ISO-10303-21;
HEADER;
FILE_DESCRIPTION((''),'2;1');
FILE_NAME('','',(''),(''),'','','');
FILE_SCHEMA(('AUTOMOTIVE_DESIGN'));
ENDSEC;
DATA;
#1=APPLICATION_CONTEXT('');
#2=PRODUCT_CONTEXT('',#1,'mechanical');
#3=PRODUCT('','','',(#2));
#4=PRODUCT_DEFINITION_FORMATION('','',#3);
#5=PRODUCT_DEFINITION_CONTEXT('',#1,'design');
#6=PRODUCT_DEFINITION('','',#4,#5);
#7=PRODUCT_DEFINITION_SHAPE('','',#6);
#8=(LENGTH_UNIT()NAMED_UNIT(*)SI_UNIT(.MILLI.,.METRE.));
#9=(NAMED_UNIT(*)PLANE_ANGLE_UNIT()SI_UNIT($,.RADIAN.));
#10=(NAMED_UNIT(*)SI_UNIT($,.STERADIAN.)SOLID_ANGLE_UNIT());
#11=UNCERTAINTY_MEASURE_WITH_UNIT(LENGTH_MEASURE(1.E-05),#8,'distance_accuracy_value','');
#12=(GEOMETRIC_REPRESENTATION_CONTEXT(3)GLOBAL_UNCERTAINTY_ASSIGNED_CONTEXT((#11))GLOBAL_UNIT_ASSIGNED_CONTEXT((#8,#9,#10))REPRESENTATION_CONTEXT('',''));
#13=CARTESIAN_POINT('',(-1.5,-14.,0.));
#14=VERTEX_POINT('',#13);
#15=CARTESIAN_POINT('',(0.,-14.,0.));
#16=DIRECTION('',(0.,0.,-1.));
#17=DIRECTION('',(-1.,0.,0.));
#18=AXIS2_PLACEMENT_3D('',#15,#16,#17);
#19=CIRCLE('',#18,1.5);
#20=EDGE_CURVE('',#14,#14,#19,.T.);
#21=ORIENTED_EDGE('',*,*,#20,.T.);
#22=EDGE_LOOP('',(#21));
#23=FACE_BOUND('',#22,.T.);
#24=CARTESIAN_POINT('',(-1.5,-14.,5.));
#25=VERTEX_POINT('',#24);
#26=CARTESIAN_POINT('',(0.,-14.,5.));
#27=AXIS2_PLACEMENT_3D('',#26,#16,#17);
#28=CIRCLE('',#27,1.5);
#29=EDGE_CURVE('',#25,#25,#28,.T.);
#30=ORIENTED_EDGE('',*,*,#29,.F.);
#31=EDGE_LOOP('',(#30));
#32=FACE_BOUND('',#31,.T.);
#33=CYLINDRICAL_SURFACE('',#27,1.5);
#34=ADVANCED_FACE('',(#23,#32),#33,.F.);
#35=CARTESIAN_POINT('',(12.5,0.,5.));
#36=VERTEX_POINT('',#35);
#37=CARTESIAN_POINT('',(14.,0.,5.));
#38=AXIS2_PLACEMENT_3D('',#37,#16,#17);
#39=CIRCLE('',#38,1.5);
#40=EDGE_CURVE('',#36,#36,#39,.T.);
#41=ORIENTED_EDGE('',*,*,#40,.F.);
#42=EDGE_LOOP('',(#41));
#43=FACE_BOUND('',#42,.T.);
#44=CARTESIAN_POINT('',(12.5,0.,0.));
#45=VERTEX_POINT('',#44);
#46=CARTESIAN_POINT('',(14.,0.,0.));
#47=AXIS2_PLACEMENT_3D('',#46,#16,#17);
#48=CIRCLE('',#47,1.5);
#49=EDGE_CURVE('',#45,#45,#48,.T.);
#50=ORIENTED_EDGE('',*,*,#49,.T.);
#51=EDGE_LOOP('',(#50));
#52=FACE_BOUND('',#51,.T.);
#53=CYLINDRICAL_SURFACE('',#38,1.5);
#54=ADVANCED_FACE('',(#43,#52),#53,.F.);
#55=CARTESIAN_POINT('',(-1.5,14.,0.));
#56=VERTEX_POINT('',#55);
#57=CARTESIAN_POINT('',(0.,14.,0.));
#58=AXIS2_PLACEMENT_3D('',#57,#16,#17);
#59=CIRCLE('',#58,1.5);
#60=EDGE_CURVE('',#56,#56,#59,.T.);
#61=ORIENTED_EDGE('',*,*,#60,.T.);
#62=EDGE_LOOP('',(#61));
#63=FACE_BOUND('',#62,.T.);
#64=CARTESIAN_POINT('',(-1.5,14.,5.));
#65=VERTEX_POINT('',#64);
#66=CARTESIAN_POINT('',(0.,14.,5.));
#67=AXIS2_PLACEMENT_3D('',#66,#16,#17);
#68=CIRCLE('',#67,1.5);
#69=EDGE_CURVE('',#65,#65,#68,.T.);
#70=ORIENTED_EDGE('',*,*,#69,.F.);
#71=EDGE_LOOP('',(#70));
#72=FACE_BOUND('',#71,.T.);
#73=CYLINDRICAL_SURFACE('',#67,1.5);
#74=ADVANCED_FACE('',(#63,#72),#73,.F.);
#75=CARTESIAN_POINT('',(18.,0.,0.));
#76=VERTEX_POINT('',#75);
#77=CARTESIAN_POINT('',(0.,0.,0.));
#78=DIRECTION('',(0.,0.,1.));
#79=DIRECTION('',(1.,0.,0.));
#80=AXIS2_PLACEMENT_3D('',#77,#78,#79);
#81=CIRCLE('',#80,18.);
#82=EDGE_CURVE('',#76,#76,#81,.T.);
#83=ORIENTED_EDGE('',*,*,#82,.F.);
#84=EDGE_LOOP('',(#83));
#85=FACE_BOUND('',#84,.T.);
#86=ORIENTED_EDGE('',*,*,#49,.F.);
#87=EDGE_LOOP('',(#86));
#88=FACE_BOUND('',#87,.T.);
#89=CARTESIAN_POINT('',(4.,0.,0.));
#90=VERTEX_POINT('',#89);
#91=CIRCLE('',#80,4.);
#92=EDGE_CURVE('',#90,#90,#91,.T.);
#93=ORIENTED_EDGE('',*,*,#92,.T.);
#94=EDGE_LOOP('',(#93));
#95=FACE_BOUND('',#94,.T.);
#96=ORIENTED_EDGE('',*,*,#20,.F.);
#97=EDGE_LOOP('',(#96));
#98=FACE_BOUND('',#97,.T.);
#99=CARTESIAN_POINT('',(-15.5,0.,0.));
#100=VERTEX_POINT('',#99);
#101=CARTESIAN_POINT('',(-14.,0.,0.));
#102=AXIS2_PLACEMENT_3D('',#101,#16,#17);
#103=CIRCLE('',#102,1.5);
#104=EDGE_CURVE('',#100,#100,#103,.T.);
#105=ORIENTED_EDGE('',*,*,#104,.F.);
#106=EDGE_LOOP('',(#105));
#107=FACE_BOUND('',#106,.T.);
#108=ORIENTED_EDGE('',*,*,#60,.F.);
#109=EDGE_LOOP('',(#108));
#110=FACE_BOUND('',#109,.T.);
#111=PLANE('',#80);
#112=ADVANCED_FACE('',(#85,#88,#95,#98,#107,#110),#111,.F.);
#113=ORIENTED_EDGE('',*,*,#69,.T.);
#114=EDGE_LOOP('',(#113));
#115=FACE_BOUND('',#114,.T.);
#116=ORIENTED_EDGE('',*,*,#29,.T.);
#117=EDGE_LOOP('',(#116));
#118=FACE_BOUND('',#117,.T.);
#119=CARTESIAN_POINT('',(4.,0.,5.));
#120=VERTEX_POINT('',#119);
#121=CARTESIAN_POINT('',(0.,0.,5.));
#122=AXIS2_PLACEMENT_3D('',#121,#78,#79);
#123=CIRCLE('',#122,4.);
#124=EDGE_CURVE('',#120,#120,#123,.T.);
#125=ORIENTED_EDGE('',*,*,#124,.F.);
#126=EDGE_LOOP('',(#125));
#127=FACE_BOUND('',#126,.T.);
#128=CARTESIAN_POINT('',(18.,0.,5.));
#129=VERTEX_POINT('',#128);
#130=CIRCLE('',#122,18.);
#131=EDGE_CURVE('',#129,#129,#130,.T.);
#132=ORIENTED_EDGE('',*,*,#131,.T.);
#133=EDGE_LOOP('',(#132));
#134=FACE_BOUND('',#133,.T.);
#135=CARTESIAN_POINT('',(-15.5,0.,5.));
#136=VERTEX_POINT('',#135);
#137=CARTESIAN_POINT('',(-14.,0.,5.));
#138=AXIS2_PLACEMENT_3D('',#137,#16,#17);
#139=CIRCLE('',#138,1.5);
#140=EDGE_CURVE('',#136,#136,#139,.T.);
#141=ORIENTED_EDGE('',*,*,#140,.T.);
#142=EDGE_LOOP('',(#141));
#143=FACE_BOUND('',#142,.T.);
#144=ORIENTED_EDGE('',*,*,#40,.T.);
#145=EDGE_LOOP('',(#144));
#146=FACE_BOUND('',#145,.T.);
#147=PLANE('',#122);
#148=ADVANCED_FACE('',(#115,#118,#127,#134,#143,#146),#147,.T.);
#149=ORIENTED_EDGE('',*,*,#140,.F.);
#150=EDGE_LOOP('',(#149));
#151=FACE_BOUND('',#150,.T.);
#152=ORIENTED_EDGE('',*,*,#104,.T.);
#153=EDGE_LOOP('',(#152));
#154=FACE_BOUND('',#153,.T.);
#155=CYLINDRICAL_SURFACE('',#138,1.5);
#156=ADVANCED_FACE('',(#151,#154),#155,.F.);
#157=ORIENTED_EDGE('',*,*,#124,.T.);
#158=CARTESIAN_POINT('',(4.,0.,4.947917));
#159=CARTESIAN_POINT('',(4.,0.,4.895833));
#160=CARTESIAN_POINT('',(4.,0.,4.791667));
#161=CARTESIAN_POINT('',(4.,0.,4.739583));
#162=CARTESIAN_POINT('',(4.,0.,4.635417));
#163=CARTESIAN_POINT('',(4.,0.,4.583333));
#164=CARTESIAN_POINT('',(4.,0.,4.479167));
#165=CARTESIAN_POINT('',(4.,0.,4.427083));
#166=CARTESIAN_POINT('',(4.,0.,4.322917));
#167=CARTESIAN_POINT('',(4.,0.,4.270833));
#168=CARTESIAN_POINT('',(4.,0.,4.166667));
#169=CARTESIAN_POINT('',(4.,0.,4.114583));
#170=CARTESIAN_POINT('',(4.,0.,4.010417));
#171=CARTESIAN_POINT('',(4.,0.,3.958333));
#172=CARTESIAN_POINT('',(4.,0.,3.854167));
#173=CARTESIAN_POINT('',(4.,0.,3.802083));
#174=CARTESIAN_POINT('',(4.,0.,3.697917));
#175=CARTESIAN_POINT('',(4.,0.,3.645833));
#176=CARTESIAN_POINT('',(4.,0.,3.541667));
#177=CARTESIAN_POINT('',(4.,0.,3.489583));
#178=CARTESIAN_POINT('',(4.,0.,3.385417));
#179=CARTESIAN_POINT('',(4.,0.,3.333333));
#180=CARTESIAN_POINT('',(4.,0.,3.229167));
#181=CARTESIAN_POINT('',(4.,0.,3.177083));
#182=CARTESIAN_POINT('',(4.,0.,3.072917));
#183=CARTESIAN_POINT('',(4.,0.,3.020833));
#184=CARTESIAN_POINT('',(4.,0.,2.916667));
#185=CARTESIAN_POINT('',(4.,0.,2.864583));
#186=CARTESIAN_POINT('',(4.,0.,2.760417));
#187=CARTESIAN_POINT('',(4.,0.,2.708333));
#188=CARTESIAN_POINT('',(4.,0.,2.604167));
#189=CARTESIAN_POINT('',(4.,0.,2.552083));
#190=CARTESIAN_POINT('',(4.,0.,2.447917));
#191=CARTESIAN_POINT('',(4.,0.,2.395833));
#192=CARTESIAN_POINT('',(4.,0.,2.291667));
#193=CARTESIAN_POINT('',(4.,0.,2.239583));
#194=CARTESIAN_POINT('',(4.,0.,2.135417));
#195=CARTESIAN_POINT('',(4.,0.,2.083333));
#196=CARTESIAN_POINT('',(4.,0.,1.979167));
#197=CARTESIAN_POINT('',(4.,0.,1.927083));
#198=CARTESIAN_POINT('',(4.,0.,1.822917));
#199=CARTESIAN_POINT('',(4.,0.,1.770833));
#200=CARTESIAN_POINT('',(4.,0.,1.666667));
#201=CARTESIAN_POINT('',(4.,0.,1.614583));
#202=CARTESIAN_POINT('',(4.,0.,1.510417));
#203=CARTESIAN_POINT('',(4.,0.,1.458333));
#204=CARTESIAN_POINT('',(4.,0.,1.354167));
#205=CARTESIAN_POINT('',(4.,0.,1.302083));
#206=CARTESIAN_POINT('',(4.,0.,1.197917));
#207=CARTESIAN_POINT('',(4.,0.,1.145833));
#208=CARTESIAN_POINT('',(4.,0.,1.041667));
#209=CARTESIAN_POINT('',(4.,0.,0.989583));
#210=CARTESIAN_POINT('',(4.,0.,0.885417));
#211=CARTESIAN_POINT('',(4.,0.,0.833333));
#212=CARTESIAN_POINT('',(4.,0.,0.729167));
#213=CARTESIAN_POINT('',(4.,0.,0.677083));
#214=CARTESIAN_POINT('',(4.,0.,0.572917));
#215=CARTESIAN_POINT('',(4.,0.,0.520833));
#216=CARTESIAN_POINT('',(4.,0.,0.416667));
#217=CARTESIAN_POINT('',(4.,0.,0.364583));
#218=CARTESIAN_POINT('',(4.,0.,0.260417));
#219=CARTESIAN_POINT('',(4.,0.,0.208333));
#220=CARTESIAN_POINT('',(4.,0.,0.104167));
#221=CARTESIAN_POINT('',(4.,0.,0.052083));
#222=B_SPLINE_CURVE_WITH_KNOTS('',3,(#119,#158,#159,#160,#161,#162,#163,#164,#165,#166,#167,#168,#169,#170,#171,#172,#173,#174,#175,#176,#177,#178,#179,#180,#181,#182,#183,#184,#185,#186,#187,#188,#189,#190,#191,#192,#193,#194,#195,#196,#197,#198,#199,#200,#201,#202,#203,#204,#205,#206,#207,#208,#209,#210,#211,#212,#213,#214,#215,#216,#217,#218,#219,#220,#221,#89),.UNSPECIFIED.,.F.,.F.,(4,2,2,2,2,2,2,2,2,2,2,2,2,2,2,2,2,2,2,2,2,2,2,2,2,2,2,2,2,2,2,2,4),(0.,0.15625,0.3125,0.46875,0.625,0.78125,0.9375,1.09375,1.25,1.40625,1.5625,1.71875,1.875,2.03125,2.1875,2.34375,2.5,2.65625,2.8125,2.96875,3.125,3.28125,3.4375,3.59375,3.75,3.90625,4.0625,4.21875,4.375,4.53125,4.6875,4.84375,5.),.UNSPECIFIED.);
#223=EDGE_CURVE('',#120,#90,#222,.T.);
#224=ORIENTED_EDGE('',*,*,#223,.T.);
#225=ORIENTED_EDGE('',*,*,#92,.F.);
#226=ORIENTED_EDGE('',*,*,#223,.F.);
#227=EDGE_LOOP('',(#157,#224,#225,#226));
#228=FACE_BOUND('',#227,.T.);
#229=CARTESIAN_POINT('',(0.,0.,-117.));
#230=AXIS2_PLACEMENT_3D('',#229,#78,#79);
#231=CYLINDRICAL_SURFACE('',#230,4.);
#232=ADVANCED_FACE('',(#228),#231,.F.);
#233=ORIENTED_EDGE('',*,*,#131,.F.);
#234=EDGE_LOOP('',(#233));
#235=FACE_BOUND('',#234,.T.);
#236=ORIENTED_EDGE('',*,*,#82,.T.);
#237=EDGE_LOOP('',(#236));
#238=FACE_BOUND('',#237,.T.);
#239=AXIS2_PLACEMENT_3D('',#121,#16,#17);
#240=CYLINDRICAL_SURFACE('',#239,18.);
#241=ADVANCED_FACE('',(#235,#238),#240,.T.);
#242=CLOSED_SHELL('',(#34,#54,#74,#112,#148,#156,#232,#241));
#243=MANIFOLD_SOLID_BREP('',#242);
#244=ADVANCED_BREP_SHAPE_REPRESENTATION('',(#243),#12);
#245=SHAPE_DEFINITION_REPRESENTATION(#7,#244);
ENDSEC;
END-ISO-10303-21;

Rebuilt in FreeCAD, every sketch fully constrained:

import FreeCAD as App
import Part
import Sketcher
from FreeCAD import Vector

doc = App.newDocument("Part")
params = doc.addObject("Spreadsheet::Sheet", "Params")
for row, (alias, value) in enumerate([
    ("sketch1_diameter", "36 mm"),
    ("pad1_length", "5 mm"),
    ("sketch2_diameter", "8 mm"),
    ("pocket1_length", "122 mm"),
    ("sketch3_diameter", "3 mm"),
    ("pocket2_length", "5 mm"),
], start=1):
    params.set(f"A{row}", alias)
    params.set(f"B{row}", "=" + value)
    params.setAlias(f"B{row}", alias)

body = doc.addObject("PartDesign::Body", "Body")

# Sketch on XY plane
sketch1 = doc.addObject("Sketcher::SketchObject", "Sketch")
body.addObject(sketch1)
sketch1.AttachmentSupport = (doc.XY_Plane, [""])
sketch1.MapMode = "FlatFace"
sketch1.addGeometry(Part.Circle(Vector(0, 0, 0), Vector(0, 0, 1), 18), False)
sketch1.addConstraint(Sketcher.Constraint("Coincident", 0, 3, -1, 1))
sketch1.addConstraint(Sketcher.Constraint("Diameter", 0, 36.0))
sketch1.setExpression("Constraints[1]", "Params.sketch1_diameter")
pad1 = doc.addObject("PartDesign::Pad", "Pad")
body.addObject(pad1)
pad1.Profile = sketch1
pad1.setExpression("Length", "Params.pad1_length")

# Sketch on XY plane
sketch2 = doc.addObject("Sketcher::SketchObject", "Sketch001")
body.addObject(sketch2)
sketch2.AttachmentSupport = (doc.XY_Plane, [""])
sketch2.MapMode = "FlatFace"
sketch2.AttachmentOffset = App.Placement(Vector(0, 0, 5), App.Rotation())
sketch2.addGeometry(Part.Circle(Vector(0, 0, 0), Vector(0, 0, 1), 4), False)
sketch2.addConstraint(Sketcher.Constraint("Coincident", 0, 3, -1, 1))
sketch2.addConstraint(Sketcher.Constraint("Diameter", 0, 8.0))
sketch2.setExpression("Constraints[1]", "Params.sketch2_diameter")
pocket1 = doc.addObject("PartDesign::Pocket", "Pocket")
body.addObject(pocket1)
pocket1.Profile = sketch2
pocket1.setExpression("Length", "Params.pocket1_length")

# Sketch on XY plane
sketch3 = doc.addObject("Sketcher::SketchObject", "Sketch002")
body.addObject(sketch3)
sketch3.AttachmentSupport = (doc.XY_Plane, [""])
sketch3.MapMode = "FlatFace"
sketch3.addGeometry(Part.Circle(Vector(0, 14, 0), Vector(0, 0, 1), 1.5), False)
sketch3.addGeometry(Part.Circle(Vector(-14, 0, 0), Vector(0, 0, 1), 1.5), False)
sketch3.addGeometry(Part.Circle(Vector(0, -14, 0), Vector(0, 0, 1), 1.5), False)
sketch3.addGeometry(Part.Circle(Vector(14, 0, 0), Vector(0, 0, 1), 1.5), False)
sketch3.addConstraint(Sketcher.Constraint("Equal", 0, 1))
sketch3.addConstraint(Sketcher.Constraint("Equal", 1, 2))
sketch3.addConstraint(Sketcher.Constraint("Equal", 2, 3))
sketch3.addConstraint(Sketcher.Constraint("Symmetric", 0, 3, 2, 3, -1, 1))
sketch3.addConstraint(Sketcher.Constraint("Symmetric", 1, 3, 3, 3, -1, 1))
sketch3.addConstraint(Sketcher.Constraint("PointOnObject", 0, 3, -2))
sketch3.addConstraint(Sketcher.Constraint("PointOnObject", 1, 3, -1))
sketch3.addConstraint(Sketcher.Constraint("Diameter", 0, 3.0))
sketch3.addConstraint(Sketcher.Constraint("DistanceY", -1, 1, 0, 3, 14.0))
sketch3.addConstraint(Sketcher.Constraint("DistanceX", 1, 3, -1, 1, 14.0))
sketch3.setExpression("Constraints[7]", "Params.sketch3_diameter")
pocket2 = doc.addObject("PartDesign::Pocket", "Pocket001")
body.addObject(pocket2)
pocket2.Profile = sketch3
pocket2.setExpression("Length", "Params.pocket2_length")
pocket2.Reversed = True

doc.recompute()
